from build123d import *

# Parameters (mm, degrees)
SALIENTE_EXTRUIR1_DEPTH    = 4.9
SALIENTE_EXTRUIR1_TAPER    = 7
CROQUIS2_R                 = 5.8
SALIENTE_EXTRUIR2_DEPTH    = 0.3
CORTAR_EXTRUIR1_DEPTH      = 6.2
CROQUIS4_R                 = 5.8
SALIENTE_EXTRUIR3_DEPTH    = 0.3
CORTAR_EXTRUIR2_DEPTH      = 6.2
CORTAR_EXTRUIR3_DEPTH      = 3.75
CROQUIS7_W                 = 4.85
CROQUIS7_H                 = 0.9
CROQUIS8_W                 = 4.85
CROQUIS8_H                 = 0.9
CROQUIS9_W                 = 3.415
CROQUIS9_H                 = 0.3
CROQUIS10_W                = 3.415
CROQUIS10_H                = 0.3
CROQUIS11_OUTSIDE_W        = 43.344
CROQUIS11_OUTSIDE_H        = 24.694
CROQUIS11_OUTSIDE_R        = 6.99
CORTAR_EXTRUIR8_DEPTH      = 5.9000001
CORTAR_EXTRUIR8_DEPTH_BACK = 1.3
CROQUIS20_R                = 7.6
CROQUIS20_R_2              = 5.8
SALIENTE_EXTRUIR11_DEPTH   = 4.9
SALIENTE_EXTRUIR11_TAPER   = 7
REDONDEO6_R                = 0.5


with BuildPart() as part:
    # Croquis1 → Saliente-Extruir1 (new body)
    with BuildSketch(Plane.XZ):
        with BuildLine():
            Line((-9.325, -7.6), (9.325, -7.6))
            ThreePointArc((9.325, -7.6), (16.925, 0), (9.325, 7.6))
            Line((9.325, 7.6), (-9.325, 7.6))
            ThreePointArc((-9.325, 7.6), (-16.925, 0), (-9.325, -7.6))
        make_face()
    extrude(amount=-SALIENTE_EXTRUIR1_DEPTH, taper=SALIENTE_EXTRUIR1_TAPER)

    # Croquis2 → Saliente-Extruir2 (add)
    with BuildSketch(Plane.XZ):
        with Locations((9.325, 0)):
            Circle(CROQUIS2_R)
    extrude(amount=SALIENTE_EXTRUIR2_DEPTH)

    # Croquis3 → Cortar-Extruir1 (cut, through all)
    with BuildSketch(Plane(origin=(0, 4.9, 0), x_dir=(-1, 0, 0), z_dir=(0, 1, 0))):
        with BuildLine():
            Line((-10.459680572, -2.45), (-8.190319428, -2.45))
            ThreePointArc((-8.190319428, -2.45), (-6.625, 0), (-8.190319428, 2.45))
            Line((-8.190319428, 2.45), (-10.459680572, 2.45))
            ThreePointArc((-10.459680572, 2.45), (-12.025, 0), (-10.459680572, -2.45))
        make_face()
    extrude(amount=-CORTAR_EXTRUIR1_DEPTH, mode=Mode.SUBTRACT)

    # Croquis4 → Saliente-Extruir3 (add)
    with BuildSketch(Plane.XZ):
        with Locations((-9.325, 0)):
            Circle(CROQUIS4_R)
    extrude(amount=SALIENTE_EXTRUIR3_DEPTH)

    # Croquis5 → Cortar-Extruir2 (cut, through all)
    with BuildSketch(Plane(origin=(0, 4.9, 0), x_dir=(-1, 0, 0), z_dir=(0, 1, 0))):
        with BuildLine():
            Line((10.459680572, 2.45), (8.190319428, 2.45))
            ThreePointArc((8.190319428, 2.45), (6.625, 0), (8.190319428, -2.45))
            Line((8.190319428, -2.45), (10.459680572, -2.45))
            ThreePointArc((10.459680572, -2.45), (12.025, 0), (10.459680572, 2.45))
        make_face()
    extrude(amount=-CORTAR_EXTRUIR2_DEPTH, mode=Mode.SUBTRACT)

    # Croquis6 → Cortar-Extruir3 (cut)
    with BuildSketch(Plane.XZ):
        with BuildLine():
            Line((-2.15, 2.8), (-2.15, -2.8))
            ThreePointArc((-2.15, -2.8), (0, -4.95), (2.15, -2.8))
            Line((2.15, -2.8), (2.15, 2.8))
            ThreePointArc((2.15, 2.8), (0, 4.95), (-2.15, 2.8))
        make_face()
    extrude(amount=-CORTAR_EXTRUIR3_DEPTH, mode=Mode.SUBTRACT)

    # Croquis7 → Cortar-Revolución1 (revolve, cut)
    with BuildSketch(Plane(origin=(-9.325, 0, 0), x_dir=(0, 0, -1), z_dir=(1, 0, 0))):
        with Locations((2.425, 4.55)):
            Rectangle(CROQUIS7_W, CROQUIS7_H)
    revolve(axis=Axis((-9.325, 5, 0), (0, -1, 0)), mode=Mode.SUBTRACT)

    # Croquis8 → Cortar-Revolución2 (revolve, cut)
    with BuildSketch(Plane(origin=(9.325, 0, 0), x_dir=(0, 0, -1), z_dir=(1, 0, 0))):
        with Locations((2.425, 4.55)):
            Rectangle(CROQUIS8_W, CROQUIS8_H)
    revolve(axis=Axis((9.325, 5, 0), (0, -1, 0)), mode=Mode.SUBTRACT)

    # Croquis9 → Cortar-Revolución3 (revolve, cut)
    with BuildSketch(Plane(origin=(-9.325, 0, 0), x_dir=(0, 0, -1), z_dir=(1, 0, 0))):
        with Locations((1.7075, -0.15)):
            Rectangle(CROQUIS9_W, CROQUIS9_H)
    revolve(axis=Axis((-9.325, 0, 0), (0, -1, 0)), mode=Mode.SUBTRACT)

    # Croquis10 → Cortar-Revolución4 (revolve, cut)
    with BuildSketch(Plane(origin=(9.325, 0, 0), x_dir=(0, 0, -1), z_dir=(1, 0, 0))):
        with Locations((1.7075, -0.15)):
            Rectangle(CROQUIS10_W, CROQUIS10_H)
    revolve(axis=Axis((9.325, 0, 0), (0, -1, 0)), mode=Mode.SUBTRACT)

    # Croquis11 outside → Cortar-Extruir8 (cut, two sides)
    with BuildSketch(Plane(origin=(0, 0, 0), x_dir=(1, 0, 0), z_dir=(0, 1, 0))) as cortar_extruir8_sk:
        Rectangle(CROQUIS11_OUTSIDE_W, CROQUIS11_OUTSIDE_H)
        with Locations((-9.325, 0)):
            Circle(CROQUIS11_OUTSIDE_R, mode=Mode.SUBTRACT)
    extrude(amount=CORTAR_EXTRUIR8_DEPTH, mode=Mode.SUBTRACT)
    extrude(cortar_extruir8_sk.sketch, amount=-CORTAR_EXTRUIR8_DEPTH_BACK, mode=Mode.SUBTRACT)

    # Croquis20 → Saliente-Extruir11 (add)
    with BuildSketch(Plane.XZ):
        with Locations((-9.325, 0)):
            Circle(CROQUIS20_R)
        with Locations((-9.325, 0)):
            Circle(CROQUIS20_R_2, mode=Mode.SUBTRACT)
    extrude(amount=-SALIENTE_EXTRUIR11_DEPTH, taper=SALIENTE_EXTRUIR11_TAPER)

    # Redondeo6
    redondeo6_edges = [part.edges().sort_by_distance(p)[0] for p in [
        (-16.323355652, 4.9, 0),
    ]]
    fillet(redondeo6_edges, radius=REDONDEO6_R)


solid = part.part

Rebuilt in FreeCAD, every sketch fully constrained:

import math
import FreeCAD as App
import Part
import Sketcher

V = App.Vector
Q = App.Units.Quantity


def edges_at(feature, points):
    """Names of the edges that pass closest to the given points."""
    edges = feature.Shape.Edges
    near = lambda p: min(range(len(edges)), key=lambda i: edges[i].distToShape(Part.Vertex(*p))[0])
    return sorted({f"Edge{near(p) + 1}" for p in points})

doc = App.newDocument("Part")
body = doc.addObject("PartDesign::Body", "Body")

sketch1 = body.newObject("Sketcher::SketchObject", "Sketch")
sketch1.AttachmentSupport = (doc.getObject("XZ_Plane"), [""])
sketch1.MapMode = "FlatFace"
sketch1.addGeometry(Part.LineSegment(V(-9.325, -7.6, 0), V(9.325, -7.6, 0)), False)
sketch1.addGeometry(Part.ArcOfCircle(Part.Circle(V(9.325, 0, 0), V(0, 0, 1), 7.6), math.radians(-90), math.radians(90)), False)
sketch1.addGeometry(Part.LineSegment(V(9.325, 7.6, 0), V(-9.325, 7.6, 0)), False)
sketch1.addGeometry(Part.ArcOfCircle(Part.Circle(V(-9.325, 0, 0), V(0, 0, 1), 7.6), math.radians(90), math.radians(270)), False)
sketch1.addConstraint(Sketcher.Constraint("Tangent", 0, 2, 1, 1))
sketch1.addConstraint(Sketcher.Constraint("Tangent", 1, 2, 2, 1))
sketch1.addConstraint(Sketcher.Constraint("Tangent", 2, 2, 3, 1))
sketch1.addConstraint(Sketcher.Constraint("Tangent", 3, 2, 0, 1))
sketch1.addConstraint(Sketcher.Constraint("Horizontal", 0))
sketch1.addConstraint(Sketcher.Constraint("Horizontal", 2))
sketch1.addConstraint(Sketcher.Constraint("Symmetric", 1, 3, 3, 3, -1, 1))
sketch1.addConstraint(Sketcher.Constraint("Radius", 1, Q("7.6 mm")))
sketch1.addConstraint(Sketcher.Constraint("DistanceX", 0, 1, 0, 2, Q("18.65 mm")))
pad1 = body.newObject("PartDesign::Pad", "Pad")
pad1.Profile = sketch1
pad1.Length = 4.9
pad1.Reversed = True
pad1.TaperAngle = -7

sketch2 = body.newObject("Sketcher::SketchObject", "Sketch001")
sketch2.AttachmentSupport = (doc.getObject("XZ_Plane"), [""])
sketch2.MapMode = "FlatFace"
sketch2.addGeometry(Part.Circle(V(9.325, 0, 0), V(0, 0, 1), 5.8), False)
sketch2.addConstraint(Sketcher.Constraint("PointOnObject", 0, 3, -1))
sketch2.addConstraint(Sketcher.Constraint("Diameter", 0, Q("11.6 mm")))
sketch2.addConstraint(Sketcher.Constraint("DistanceX", -1, 1, 0, 3, Q("9.325 mm")))
pad2 = body.newObject("PartDesign::Pad", "Pad001")
pad2.Profile = sketch2
pad2.Length = 0.3

sketch3 = body.newObject("Sketcher::SketchObject", "Sketch002")
sketch3.AttachmentSupport = (doc.getObject("XZ_Plane"), [""])
sketch3.MapMode = "FlatFace"
sketch3.AttachmentOffset = App.Placement(V(0, 0, -4.9), App.Rotation())
sketch3.addGeometry(Part.LineSegment(V(10.459681, -2.45, 0), V(8.190319, -2.45, 0)), False)
sketch3.addGeometry(Part.ArcOfCircle(Part.Circle(V(9.325, 0, 0), V(0, 0, 1), 2.7), math.radians(114.850502), math.radians(245.149498)), False)
sketch3.addGeometry(Part.LineSegment(V(8.190319, 2.45, 0), V(10.459681, 2.45, 0)), False)
sketch3.addGeometry(Part.ArcOfCircle(Part.Circle(V(9.325, 0, 0), V(0, 0, 1), 2.7), math.radians(-65.149498), math.radians(65.149498)), False)
sketch3.addConstraint(Sketcher.Constraint("Coincident", 0, 2, 1, 2))
sketch3.addConstraint(Sketcher.Constraint("Coincident", 1, 1, 2, 1))
sketch3.addConstraint(Sketcher.Constraint("Coincident", 2, 2, 3, 2))
sketch3.addConstraint(Sketcher.Constraint("Coincident", 3, 1, 0, 1))
sketch3.addConstraint(Sketcher.Constraint("Horizontal", 0))
sketch3.addConstraint(Sketcher.Constraint("Horizontal", 2))
sketch3.addConstraint(Sketcher.Constraint("Coincident", 3, 3, 1, 3))
sketch3.addConstraint(Sketcher.Constraint("Equal", 1, 3))
sketch3.addConstraint(Sketcher.Constraint("Symmetric", 0, 2, 1, 1, -1))
sketch3.addConstraint(Sketcher.Constraint("Radius", 1, Q("2.7 mm")))
sketch3.addConstraint(Sketcher.Constraint("DistanceY", 0, 2, 1, 1, Q("4.9 mm")))
sketch3.addConstraint(Sketcher.Constraint("DistanceX", -1, 1, 1, 3, Q("9.325 mm")))
pocket1 = body.newObject("PartDesign::Pocket", "Pocket")
pocket1.Profile = sketch3
pocket1.Type = "ThroughAll"
pocket1.Reversed = True

sketch4 = body.newObject("Sketcher::SketchObject", "Sketch003")
sketch4.AttachmentSupport = (doc.getObject("XZ_Plane"), [""])
sketch4.MapMode = "FlatFace"
sketch4.addGeometry(Part.Circle(V(-9.325, 0, 0), V(0, 0, 1), 5.8), False)
sketch4.addConstraint(Sketcher.Constraint("PointOnObject", 0, 3, -1))
sketch4.addConstraint(Sketcher.Constraint("Diameter", 0, Q("11.6 mm")))
sketch4.addConstraint(Sketcher.Constraint("DistanceX", 0, 3, -1, 1, Q("9.325 mm")))
pad3 = body.newObject("PartDesign::Pad", "Pad002")
pad3.Profile = sketch4
pad3.Length = 0.3

sketch5 = body.newObject("Sketcher::SketchObject", "Sketch004")
sketch5.AttachmentSupport = (doc.getObject("XZ_Plane"), [""])
sketch5.MapMode = "FlatFace"
sketch5.AttachmentOffset = App.Placement(V(0, 0, -4.9), App.Rotation())
sketch5.addGeometry(Part.LineSegment(V(-10.459681, 2.45, 0), V(-8.190319, 2.45, 0)), False)
sketch5.addGeometry(Part.ArcOfCircle(Part.Circle(V(-9.325, 0, 0), V(0, 0, 1), 2.7), math.radians(-65.149498), math.radians(65.149498)), False)
sketch5.addGeometry(Part.LineSegment(V(-8.190319, -2.45, 0), V(-10.459681, -2.45, 0)), False)
sketch5.addGeometry(Part.ArcOfCircle(Part.Circle(V(-9.325, 0, 0), V(0, 0, 1), 2.7), math.radians(114.850502), math.radians(245.149498)), False)
sketch5.addConstraint(Sketcher.Constraint("Coincident", 0, 2, 1, 2))
sketch5.addConstraint(Sketcher.Constraint("Coincident", 1, 1, 2, 1))
sketch5.addConstraint(Sketcher.Constraint("Coincident", 2, 2, 3, 2))
sketch5.addConstraint(Sketcher.Constraint("Coincident", 3, 1, 0, 1))
sketch5.addConstraint(Sketcher.Constraint("Horizontal", 0))
sketch5.addConstraint(Sketcher.Constraint("Horizontal", 2))
sketch5.addConstraint(Sketcher.Constraint("Coincident", 3, 3, 1, 3))
sketch5.addConstraint(Sketcher.Constraint("Equal", 1, 3))
sketch5.addConstraint(Sketcher.Constraint("Symmetric", 0, 2, 1, 1, -1))
sketch5.addConstraint(Sketcher.Constraint("Radius", 1, Q("2.7 mm")))
sketch5.addConstraint(Sketcher.Constraint("DistanceY", 1, 1, 0, 2, Q("4.9 mm")))
sketch5.addConstraint(Sketcher.Constraint("DistanceX", 1, 3, -1, 1, Q("9.325 mm")))
pocket2 = body.newObject("PartDesign::Pocket", "Pocket001")
pocket2.Profile = sketch5
pocket2.Type = "ThroughAll"
pocket2.Reversed = True

sketch6 = body.newObject("Sketcher::SketchObject", "Sketch005")
sketch6.AttachmentSupport = (doc.getObject("XZ_Plane"), [""])
sketch6.MapMode = "FlatFace"
sketch6.addGeometry(Part.LineSegment(V(-2.15, 2.8, 0), V(-2.15, -2.8, 0)), False)
sketch6.addGeometry(Part.ArcOfCircle(Part.Circle(V(0, -2.8, 0), V(0, 0, 1), 2.15), math.radians(180), math.radians(360)), False)
sketch6.addGeometry(Part.LineSegment(V(2.15, -2.8, 0), V(2.15, 2.8, 0)), False)
sketch6.addGeometry(Part.ArcOfCircle(Part.Circle(V(0, 2.8, 0), V(0, 0, 1), 2.15), math.radians(0), math.radians(180)), False)
sketch6.addConstraint(Sketcher.Constraint("Tangent", 0, 2, 1, 1))
sketch6.addConstraint(Sketcher.Constraint("Tangent", 1, 2, 2, 1))
sketch6.addConstraint(Sketcher.Constraint("Tangent", 2, 2, 3, 1))
sketch6.addConstraint(Sketcher.Constraint("Tangent", 3, 2, 0, 1))
sketch6.addConstraint(Sketcher.Constraint("Vertical", 0))
sketch6.addConstraint(Sketcher.Constraint("Vertical", 2))
sketch6.addConstraint(Sketcher.Constraint("Symmetric", 1, 3, 3, 3, -1, 1))
sketch6.addConstraint(Sketcher.Constraint("Radius", 1, Q("2.15 mm")))
sketch6.addConstraint(Sketcher.Constraint("DistanceY", 0, 2, 0, 1, Q("5.6 mm")))
pocket3 = body.newObject("PartDesign::Pocket", "Pocket002")
pocket3.Profile = sketch6
pocket3.Length = 3.75

sketch7 = body.newObject("Sketcher::SketchObject", "Sketch006")
sketch7.AttachmentSupport = (doc.getObject("YZ_Plane"), [""])
sketch7.MapMode = "FlatFace"
sketch7.AttachmentOffset = App.Placement(V(0, 0, -9.325), App.Rotation())
sketch7.addGeometry(Part.LineSegment(V(5, 0, 0), V(4.1, 0, 0)), False)
sketch7.addGeometry(Part.LineSegment(V(4.1, 0, 0), V(4.1, -4.85, 0)), False)
sketch7.addGeometry(Part.LineSegment(V(4.1, -4.85, 0), V(5, -4.85, 0)), False)
sketch7.addGeometry(Part.LineSegment(V(5, -4.85, 0), V(5, 0, 0)), False)
sketch7.addConstraint(Sketcher.Constraint("Coincident", 0, 2, 1, 1))
sketch7.addConstraint(Sketcher.Constraint("Coincident", 1, 2, 2, 1))
sketch7.addConstraint(Sketcher.Constraint("Coincident", 2, 2, 3, 1))
sketch7.addConstraint(Sketcher.Constraint("Coincident", 3, 2, 0, 1))
sketch7.addConstraint(Sketcher.Constraint("Horizontal", 0))
sketch7.addConstraint(Sketcher.Constraint("Vertical", 1))
sketch7.addConstraint(Sketcher.Constraint("Horizontal", 2))
sketch7.addConstraint(Sketcher.Constraint("Vertical", 3))
sketch7.addConstraint(Sketcher.Constraint("PointOnObject", 0, 2, -1))
sketch7.addConstraint(Sketcher.Constraint("DistanceX", 0, 2, 0, 1, Q("0.9 mm")))
sketch7.addConstraint(Sketcher.Constraint("DistanceX", -1, 1, 2, 2, Q("5 mm")))
sketch7.addConstraint(Sketcher.Constraint("DistanceY", 1, 2, 1, 1, Q("4.85 mm")))
groove = body.newObject("PartDesign::Groove", "Groove")
groove.Profile = sketch7
groove.ReferenceAxis = (sketch7, ["H_Axis"])
groove.Angle = 360

sketch8 = body.newObject("Sketcher::SketchObject", "Sketch007")
sketch8.AttachmentSupport = (doc.getObject("YZ_Plane"), [""])
sketch8.MapMode = "FlatFace"
sketch8.AttachmentOffset = App.Placement(V(0, 0, 9.325), App.Rotation())
sketch8.addGeometry(Part.LineSegment(V(5, 0, 0), V(4.1, 0, 0)), False)
sketch8.addGeometry(Part.LineSegment(V(4.1, 0, 0), V(4.1, -4.85, 0)), False)
sketch8.addGeometry(Part.LineSegment(V(4.1, -4.85, 0), V(5, -4.85, 0)), False)
sketch8.addGeometry(Part.LineSegment(V(5, -4.85, 0), V(5, 0, 0)), False)
sketch8.addConstraint(Sketcher.Constraint("Coincident", 0, 2, 1, 1))
sketch8.addConstraint(Sketcher.Constraint("Coincident", 1, 2, 2, 1))
sketch8.addConstraint(Sketcher.Constraint("Coincident", 2, 2, 3, 1))
sketch8.addConstraint(Sketcher.Constraint("Coincident", 3, 2, 0, 1))
sketch8.addConstraint(Sketcher.Constraint("Horizontal", 0))
sketch8.addConstraint(Sketcher.Constraint("Vertical", 1))
sketch8.addConstraint(Sketcher.Constraint("Horizontal", 2))
sketch8.addConstraint(Sketcher.Constraint("Vertical", 3))
sketch8.addConstraint(Sketcher.Constraint("PointOnObject", 0, 2, -1))
sketch8.addConstraint(Sketcher.Constraint("DistanceX", 0, 2, 0, 1, Q("0.9 mm")))
sketch8.addConstraint(Sketcher.Constraint("DistanceX", -1, 1, 2, 2, Q("5 mm")))
sketch8.addConstraint(Sketcher.Constraint("DistanceY", 1, 2, 1, 1, Q("4.85 mm")))
groove2 = body.newObject("PartDesign::Groove", "Groove001")
groove2.Profile = sketch8
groove2.ReferenceAxis = (sketch8, ["H_Axis"])
groove2.Angle = 360

sketch9 = body.newObject("Sketcher::SketchObject", "Sketch008")
sketch9.AttachmentSupport = (doc.getObject("YZ_Plane"), [""])
sketch9.MapMode = "FlatFace"
sketch9.AttachmentOffset = App.Placement(V(0, 0, -9.325), App.Rotation())
sketch9.addGeometry(Part.LineSegment(V(0, 0, 0), V(-0.3, 0, 0)), False)
sketch9.addGeometry(Part.LineSegment(V(-0.3, 0, 0), V(-0.3, -3.415, 0)), False)
sketch9.addGeometry(Part.LineSegment(V(-0.3, -3.415, 0), V(0, -3.415, 0)), False)
sketch9.addGeometry(Part.LineSegment(V(0, -3.415, 0), V(0, 0, 0)), False)
sketch9.addConstraint(Sketcher.Constraint("Coincident", 0, 2, 1, 1))
sketch9.addConstraint(Sketcher.Constraint("Coincident", 1, 2, 2, 1))
sketch9.addConstraint(Sketcher.Constraint("Coincident", 2, 2, 3, 1))
sketch9.addConstraint(Sketcher.Constraint("Coincident", 3, 2, 0, 1))
sketch9.addConstraint(Sketcher.Constraint("Horizontal", 0))
sketch9.addConstraint(Sketcher.Constraint("Vertical", 1))
sketch9.addConstraint(Sketcher.Constraint("Horizontal", 2))
sketch9.addConstraint(Sketcher.Constraint("Vertical", 3))
sketch9.addConstraint(Sketcher.Constraint("Coincident", 3, 2, -1, 1))
sketch9.addConstraint(Sketcher.Constraint("DistanceX", 0, 2, 0, 1, Q("0.3 mm")))
sketch9.addConstraint(Sketcher.Constraint("DistanceY", 1, 2, 1, 1, Q("3.415 mm")))
groove3 = body.newObject("PartDesign::Groove", "Groove002")
groove3.Profile = sketch9
groove3.ReferenceAxis = (sketch9, ["H_Axis"])
groove3.Angle = 360

sketch10 = body.newObject("Sketcher::SketchObject", "Sketch009")
sketch10.AttachmentSupport = (doc.getObject("YZ_Plane"), [""])
sketch10.MapMode = "FlatFace"
sketch10.AttachmentOffset = App.Placement(V(0, 0, 9.325), App.Rotation())
sketch10.addGeometry(Part.LineSegment(V(0, 0, 0), V(-0.3, 0, 0)), False)
sketch10.addGeometry(Part.LineSegment(V(-0.3, 0, 0), V(-0.3, -3.415, 0)), False)
sketch10.addGeometry(Part.LineSegment(V(-0.3, -3.415, 0), V(0, -3.415, 0)), False)
sketch10.addGeometry(Part.LineSegment(V(0, -3.415, 0), V(0, 0, 0)), False)
sketch10.addConstraint(Sketcher.Constraint("Coincident", 0, 2, 1, 1))
sketch10.addConstraint(Sketcher.Constraint("Coincident", 1, 2, 2, 1))
sketch10.addConstraint(Sketcher.Constraint("Coincident", 2, 2, 3, 1))
sketch10.addConstraint(Sketcher.Constraint("Coincident", 3, 2, 0, 1))
sketch10.addConstraint(Sketcher.Constraint("Horizontal", 0))
sketch10.addConstraint(Sketcher.Constraint("Vertical", 1))
sketch10.addConstraint(Sketcher.Constraint("Horizontal", 2))
sketch10.addConstraint(Sketcher.Constraint("Vertical", 3))
sketch10.addConstraint(Sketcher.Constraint("Coincident", 3, 2, -1, 1))
sketch10.addConstraint(Sketcher.Constraint("DistanceX", 0, 2, 0, 1, Q("0.3 mm")))
sketch10.addConstraint(Sketcher.Constraint("DistanceY", 1, 2, 1, 1, Q("3.415 mm")))
groove4 = body.newObject("PartDesign::Groove", "Groove003")
groove4.Profile = sketch10
groove4.ReferenceAxis = (sketch10, ["H_Axis"])
groove4.Angle = 360

sketch11 = body.newObject("Sketcher::SketchObject", "Sketch010")
sketch11.AttachmentSupport = (doc.getObject("XZ_Plane"), [""])
sketch11.MapMode = "FlatFace"
sketch11.addGeometry(Part.LineSegment(V(-21.672, -12.347, 0), V(-21.672, 12.347, 0)), False)
sketch11.addGeometry(Part.LineSegment(V(-21.672, 12.347, 0), V(21.672, 12.347, 0)), False)
sketch11.addGeometry(Part.LineSegment(V(21.672, 12.347, 0), V(21.672, -12.347, 0)), False)
sketch11.addGeometry(Part.LineSegment(V(21.672, -12.347, 0), V(-21.672, -12.347, 0)), False)
sketch11.addGeometry(Part.Circle(V(-9.325, 0, 0), V(0, 0, 1), 6.99), False)
sketch11.addConstraint(Sketcher.Constraint("Coincident", 0, 2, 1, 1))
sketch11.addConstraint(Sketcher.Constraint("Coincident", 1, 2, 2, 1))
sketch11.addConstraint(Sketcher.Constraint("Coincident", 2, 2, 3, 1))
sketch11.addConstraint(Sketcher.Constraint("Coincident", 3, 2, 0, 1))
sketch11.addConstraint(Sketcher.Constraint("Vertical", 0))
sketch11.addConstraint(Sketcher.Constraint("Horizontal", 1))
sketch11.addConstraint(Sketcher.Constraint("Vertical", 2))
sketch11.addConstraint(Sketcher.Constraint("Horizontal", 3))
sketch11.addConstraint(Sketcher.Constraint("Symmetric", 0, 2, 2, 2, -1, 1))
sketch11.addConstraint(Sketcher.Constraint("PointOnObject", 4, 3, -1))
sketch11.addConstraint(Sketcher.Constraint("Diameter", 4, Q("13.98 mm")))
sketch11.addConstraint(Sketcher.Constraint("DistanceX", 1, 1, 1, 2, Q("43.344 mm")))
sketch11.addConstraint(Sketcher.Constraint("DistanceY", 0, 1, 0, 2, Q("24.694 mm")))
sketch11.addConstraint(Sketcher.Constraint("DistanceX", 4, 3, -1, 1, Q("9.325 mm")))
pocket4 = body.newObject("PartDesign::Pocket", "Pocket003")
pocket4.Profile = sketch11
pocket4.Type = "ThroughAll"
pocket4.Midplane = True

sketch12 = body.newObject("Sketcher::SketchObject", "Sketch011")
sketch12.AttachmentSupport = (doc.getObject("XZ_Plane"), [""])
sketch12.MapMode = "FlatFace"
sketch12.addGeometry(Part.Circle(V(-9.325, 0, 0), V(0, 0, 1), 7.6), False)
sketch12.addGeometry(Part.Circle(V(-9.325, 0, 0), V(0, 0, 1), 5.8), False)
sketch12.addConstraint(Sketcher.Constraint("Coincident", 1, 3, 0, 3))
sketch12.addConstraint(Sketcher.Constraint("PointOnObject", 0, 3, -1))
sketch12.addConstraint(Sketcher.Constraint("Diameter", 0, Q("15.2 mm")))
sketch12.addConstraint(Sketcher.Constraint("Diameter", 1, Q("11.6 mm")))
sketch12.addConstraint(Sketcher.Constraint("DistanceX", 0, 3, -1, 1, Q("9.325 mm")))
pad4 = body.newObject("PartDesign::Pad", "Pad003")
pad4.Profile = sketch12
pad4.Length = 4.9
pad4.Reversed = True
pad4.TaperAngle = -7
doc.recompute()

fillet = body.newObject("PartDesign::Fillet", "Fillet")
fillet.Base = (pad4, edges_at(pad4, [(-16.323, 4.9, 0)]))
fillet.Radius = 0.5

doc.recompute()
